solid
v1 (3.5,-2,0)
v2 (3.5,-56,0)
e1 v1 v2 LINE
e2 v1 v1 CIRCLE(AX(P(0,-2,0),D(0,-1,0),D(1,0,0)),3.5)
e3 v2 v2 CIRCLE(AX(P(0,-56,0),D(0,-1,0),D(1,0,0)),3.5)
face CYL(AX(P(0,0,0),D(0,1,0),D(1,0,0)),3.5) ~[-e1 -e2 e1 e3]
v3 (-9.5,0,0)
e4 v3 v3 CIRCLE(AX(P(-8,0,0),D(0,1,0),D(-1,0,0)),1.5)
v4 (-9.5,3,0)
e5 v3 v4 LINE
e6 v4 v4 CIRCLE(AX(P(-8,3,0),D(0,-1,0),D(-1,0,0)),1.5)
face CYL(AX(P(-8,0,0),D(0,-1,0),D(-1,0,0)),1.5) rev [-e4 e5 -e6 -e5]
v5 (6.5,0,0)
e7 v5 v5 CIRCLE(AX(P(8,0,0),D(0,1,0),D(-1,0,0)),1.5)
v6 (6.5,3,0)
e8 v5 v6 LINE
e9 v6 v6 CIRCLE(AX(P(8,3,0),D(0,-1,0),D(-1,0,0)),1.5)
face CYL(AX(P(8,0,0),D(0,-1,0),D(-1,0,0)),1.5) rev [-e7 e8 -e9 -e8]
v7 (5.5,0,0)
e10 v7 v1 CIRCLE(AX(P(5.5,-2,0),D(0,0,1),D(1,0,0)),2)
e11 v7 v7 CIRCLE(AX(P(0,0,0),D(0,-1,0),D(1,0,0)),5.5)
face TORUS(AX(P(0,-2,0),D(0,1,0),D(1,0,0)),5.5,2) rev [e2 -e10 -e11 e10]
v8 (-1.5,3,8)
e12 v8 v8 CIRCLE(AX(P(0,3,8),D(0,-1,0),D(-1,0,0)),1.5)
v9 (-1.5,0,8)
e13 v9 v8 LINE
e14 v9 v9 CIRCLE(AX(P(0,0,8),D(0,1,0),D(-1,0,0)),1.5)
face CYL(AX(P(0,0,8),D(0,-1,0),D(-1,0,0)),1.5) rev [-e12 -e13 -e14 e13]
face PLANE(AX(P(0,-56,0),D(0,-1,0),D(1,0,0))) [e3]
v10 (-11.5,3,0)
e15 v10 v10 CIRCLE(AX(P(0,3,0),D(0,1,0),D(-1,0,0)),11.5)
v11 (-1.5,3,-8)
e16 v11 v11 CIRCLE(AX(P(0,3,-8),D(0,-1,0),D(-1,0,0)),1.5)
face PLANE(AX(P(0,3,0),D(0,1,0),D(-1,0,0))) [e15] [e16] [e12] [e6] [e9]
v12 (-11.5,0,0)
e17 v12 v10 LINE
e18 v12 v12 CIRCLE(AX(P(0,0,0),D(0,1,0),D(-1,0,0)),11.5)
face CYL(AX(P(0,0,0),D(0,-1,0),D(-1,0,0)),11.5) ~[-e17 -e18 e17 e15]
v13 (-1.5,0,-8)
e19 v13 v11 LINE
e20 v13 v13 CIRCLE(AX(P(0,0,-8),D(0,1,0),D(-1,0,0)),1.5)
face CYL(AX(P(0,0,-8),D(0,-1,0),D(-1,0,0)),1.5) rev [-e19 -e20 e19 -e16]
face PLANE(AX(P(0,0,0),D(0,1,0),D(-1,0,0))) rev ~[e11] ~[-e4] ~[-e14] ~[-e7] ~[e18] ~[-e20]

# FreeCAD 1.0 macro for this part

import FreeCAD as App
import Part
import Sketcher
Q = App.Units.Quantity


def edges_at(feature, points):
    """Names of the edges that pass closest to the given points."""
    edges = feature.Shape.Edges
    near = lambda p: min(range(len(edges)), key=lambda i: edges[i].distToShape(Part.Vertex(*p))[0])
    return sorted({f"Edge{near(p) + 1}" for p in points})

doc = App.newDocument("Part")
body = doc.addObject("PartDesign::Body", "Body")

# Sketch on XZ plane
sketch1 = body.newObject("Sketcher::SketchObject", "Sketch")
sketch1.AttachmentSupport = (doc.getObject("XZ_Plane"), [""])
sketch1.MapMode = "FlatFace"
sketch1.addGeometry(Part.Circle(App.Vector(0, 0, 0), App.Vector(0, 0, 1), 11.5), False)
sketch1.addGeometry(Part.Circle(App.Vector(0, 8, 0), App.Vector(0, 0, 1), 1.5), False)
sketch1.addGeometry(Part.Circle(App.Vector(8, 0, 0), App.Vector(0, 0, 1), 1.5), False)
sketch1.addGeometry(Part.Circle(App.Vector(0, -8, 0), App.Vector(0, 0, 1), 1.5), False)
sketch1.addGeometry(Part.Circle(App.Vector(-8, 0, 0), App.Vector(0, 0, 1), 1.5), False)
sketch1.addConstraint(Sketcher.Constraint("Coincident", 0, 3, -1, 1))
sketch1.addConstraint(Sketcher.Constraint("Equal", 1, 2))
sketch1.addConstraint(Sketcher.Constraint("Equal", 2, 3))
sketch1.addConstraint(Sketcher.Constraint("Equal", 3, 4))
sketch1.addConstraint(Sketcher.Constraint("Symmetric", 1, 3, 3, 3, -1, 1))
sketch1.addConstraint(Sketcher.Constraint("Symmetric", 2, 3, 4, 3, -1, 1))
sketch1.addConstraint(Sketcher.Constraint("PointOnObject", 1, 3, -2))
sketch1.addConstraint(Sketcher.Constraint("PointOnObject", 2, 3, -1))
sketch1.addConstraint(Sketcher.Constraint("Diameter", 0, Q("23 mm")))
sketch1.addConstraint(Sketcher.Constraint("Diameter", 1, Q("3 mm")))
sketch1.addConstraint(Sketcher.Constraint("DistanceY", 3, 3, 1, 3, Q("16 mm")))
sketch1.addConstraint(Sketcher.Constraint("DistanceX", 4, 3, 2, 3, Q("16 mm")))
pad1 = body.newObject("PartDesign::Pad", "Pad")
pad1.Profile = sketch1
pad1.Length = 3
pad1.Reversed = True

# Sketch on XZ plane
sketch2 = body.newObject("Sketcher::SketchObject", "Sketch001")
sketch2.AttachmentSupport = (doc.getObject("XZ_Plane"), [""])
sketch2.MapMode = "FlatFace"
sketch2.addGeometry(Part.Circle(App.Vector(0, 0, 0), App.Vector(0, 0, 1), 3.5), False)
sketch2.addConstraint(Sketcher.Constraint("Coincident", 0, 3, -1, 1))
sketch2.addConstraint(Sketcher.Constraint("Diameter", 0, Q("7 mm")))
pad2 = body.newObject("PartDesign::Pad", "Pad001")
pad2.Profile = sketch2
pad2.Length = 56
doc.recompute()

fillet = body.newObject("PartDesign::Fillet", "Fillet")
fillet.Base = (pad2, edges_at(pad2, [(-3.5, 0, 0)]))
fillet.Radius = 2

doc.recompute()
